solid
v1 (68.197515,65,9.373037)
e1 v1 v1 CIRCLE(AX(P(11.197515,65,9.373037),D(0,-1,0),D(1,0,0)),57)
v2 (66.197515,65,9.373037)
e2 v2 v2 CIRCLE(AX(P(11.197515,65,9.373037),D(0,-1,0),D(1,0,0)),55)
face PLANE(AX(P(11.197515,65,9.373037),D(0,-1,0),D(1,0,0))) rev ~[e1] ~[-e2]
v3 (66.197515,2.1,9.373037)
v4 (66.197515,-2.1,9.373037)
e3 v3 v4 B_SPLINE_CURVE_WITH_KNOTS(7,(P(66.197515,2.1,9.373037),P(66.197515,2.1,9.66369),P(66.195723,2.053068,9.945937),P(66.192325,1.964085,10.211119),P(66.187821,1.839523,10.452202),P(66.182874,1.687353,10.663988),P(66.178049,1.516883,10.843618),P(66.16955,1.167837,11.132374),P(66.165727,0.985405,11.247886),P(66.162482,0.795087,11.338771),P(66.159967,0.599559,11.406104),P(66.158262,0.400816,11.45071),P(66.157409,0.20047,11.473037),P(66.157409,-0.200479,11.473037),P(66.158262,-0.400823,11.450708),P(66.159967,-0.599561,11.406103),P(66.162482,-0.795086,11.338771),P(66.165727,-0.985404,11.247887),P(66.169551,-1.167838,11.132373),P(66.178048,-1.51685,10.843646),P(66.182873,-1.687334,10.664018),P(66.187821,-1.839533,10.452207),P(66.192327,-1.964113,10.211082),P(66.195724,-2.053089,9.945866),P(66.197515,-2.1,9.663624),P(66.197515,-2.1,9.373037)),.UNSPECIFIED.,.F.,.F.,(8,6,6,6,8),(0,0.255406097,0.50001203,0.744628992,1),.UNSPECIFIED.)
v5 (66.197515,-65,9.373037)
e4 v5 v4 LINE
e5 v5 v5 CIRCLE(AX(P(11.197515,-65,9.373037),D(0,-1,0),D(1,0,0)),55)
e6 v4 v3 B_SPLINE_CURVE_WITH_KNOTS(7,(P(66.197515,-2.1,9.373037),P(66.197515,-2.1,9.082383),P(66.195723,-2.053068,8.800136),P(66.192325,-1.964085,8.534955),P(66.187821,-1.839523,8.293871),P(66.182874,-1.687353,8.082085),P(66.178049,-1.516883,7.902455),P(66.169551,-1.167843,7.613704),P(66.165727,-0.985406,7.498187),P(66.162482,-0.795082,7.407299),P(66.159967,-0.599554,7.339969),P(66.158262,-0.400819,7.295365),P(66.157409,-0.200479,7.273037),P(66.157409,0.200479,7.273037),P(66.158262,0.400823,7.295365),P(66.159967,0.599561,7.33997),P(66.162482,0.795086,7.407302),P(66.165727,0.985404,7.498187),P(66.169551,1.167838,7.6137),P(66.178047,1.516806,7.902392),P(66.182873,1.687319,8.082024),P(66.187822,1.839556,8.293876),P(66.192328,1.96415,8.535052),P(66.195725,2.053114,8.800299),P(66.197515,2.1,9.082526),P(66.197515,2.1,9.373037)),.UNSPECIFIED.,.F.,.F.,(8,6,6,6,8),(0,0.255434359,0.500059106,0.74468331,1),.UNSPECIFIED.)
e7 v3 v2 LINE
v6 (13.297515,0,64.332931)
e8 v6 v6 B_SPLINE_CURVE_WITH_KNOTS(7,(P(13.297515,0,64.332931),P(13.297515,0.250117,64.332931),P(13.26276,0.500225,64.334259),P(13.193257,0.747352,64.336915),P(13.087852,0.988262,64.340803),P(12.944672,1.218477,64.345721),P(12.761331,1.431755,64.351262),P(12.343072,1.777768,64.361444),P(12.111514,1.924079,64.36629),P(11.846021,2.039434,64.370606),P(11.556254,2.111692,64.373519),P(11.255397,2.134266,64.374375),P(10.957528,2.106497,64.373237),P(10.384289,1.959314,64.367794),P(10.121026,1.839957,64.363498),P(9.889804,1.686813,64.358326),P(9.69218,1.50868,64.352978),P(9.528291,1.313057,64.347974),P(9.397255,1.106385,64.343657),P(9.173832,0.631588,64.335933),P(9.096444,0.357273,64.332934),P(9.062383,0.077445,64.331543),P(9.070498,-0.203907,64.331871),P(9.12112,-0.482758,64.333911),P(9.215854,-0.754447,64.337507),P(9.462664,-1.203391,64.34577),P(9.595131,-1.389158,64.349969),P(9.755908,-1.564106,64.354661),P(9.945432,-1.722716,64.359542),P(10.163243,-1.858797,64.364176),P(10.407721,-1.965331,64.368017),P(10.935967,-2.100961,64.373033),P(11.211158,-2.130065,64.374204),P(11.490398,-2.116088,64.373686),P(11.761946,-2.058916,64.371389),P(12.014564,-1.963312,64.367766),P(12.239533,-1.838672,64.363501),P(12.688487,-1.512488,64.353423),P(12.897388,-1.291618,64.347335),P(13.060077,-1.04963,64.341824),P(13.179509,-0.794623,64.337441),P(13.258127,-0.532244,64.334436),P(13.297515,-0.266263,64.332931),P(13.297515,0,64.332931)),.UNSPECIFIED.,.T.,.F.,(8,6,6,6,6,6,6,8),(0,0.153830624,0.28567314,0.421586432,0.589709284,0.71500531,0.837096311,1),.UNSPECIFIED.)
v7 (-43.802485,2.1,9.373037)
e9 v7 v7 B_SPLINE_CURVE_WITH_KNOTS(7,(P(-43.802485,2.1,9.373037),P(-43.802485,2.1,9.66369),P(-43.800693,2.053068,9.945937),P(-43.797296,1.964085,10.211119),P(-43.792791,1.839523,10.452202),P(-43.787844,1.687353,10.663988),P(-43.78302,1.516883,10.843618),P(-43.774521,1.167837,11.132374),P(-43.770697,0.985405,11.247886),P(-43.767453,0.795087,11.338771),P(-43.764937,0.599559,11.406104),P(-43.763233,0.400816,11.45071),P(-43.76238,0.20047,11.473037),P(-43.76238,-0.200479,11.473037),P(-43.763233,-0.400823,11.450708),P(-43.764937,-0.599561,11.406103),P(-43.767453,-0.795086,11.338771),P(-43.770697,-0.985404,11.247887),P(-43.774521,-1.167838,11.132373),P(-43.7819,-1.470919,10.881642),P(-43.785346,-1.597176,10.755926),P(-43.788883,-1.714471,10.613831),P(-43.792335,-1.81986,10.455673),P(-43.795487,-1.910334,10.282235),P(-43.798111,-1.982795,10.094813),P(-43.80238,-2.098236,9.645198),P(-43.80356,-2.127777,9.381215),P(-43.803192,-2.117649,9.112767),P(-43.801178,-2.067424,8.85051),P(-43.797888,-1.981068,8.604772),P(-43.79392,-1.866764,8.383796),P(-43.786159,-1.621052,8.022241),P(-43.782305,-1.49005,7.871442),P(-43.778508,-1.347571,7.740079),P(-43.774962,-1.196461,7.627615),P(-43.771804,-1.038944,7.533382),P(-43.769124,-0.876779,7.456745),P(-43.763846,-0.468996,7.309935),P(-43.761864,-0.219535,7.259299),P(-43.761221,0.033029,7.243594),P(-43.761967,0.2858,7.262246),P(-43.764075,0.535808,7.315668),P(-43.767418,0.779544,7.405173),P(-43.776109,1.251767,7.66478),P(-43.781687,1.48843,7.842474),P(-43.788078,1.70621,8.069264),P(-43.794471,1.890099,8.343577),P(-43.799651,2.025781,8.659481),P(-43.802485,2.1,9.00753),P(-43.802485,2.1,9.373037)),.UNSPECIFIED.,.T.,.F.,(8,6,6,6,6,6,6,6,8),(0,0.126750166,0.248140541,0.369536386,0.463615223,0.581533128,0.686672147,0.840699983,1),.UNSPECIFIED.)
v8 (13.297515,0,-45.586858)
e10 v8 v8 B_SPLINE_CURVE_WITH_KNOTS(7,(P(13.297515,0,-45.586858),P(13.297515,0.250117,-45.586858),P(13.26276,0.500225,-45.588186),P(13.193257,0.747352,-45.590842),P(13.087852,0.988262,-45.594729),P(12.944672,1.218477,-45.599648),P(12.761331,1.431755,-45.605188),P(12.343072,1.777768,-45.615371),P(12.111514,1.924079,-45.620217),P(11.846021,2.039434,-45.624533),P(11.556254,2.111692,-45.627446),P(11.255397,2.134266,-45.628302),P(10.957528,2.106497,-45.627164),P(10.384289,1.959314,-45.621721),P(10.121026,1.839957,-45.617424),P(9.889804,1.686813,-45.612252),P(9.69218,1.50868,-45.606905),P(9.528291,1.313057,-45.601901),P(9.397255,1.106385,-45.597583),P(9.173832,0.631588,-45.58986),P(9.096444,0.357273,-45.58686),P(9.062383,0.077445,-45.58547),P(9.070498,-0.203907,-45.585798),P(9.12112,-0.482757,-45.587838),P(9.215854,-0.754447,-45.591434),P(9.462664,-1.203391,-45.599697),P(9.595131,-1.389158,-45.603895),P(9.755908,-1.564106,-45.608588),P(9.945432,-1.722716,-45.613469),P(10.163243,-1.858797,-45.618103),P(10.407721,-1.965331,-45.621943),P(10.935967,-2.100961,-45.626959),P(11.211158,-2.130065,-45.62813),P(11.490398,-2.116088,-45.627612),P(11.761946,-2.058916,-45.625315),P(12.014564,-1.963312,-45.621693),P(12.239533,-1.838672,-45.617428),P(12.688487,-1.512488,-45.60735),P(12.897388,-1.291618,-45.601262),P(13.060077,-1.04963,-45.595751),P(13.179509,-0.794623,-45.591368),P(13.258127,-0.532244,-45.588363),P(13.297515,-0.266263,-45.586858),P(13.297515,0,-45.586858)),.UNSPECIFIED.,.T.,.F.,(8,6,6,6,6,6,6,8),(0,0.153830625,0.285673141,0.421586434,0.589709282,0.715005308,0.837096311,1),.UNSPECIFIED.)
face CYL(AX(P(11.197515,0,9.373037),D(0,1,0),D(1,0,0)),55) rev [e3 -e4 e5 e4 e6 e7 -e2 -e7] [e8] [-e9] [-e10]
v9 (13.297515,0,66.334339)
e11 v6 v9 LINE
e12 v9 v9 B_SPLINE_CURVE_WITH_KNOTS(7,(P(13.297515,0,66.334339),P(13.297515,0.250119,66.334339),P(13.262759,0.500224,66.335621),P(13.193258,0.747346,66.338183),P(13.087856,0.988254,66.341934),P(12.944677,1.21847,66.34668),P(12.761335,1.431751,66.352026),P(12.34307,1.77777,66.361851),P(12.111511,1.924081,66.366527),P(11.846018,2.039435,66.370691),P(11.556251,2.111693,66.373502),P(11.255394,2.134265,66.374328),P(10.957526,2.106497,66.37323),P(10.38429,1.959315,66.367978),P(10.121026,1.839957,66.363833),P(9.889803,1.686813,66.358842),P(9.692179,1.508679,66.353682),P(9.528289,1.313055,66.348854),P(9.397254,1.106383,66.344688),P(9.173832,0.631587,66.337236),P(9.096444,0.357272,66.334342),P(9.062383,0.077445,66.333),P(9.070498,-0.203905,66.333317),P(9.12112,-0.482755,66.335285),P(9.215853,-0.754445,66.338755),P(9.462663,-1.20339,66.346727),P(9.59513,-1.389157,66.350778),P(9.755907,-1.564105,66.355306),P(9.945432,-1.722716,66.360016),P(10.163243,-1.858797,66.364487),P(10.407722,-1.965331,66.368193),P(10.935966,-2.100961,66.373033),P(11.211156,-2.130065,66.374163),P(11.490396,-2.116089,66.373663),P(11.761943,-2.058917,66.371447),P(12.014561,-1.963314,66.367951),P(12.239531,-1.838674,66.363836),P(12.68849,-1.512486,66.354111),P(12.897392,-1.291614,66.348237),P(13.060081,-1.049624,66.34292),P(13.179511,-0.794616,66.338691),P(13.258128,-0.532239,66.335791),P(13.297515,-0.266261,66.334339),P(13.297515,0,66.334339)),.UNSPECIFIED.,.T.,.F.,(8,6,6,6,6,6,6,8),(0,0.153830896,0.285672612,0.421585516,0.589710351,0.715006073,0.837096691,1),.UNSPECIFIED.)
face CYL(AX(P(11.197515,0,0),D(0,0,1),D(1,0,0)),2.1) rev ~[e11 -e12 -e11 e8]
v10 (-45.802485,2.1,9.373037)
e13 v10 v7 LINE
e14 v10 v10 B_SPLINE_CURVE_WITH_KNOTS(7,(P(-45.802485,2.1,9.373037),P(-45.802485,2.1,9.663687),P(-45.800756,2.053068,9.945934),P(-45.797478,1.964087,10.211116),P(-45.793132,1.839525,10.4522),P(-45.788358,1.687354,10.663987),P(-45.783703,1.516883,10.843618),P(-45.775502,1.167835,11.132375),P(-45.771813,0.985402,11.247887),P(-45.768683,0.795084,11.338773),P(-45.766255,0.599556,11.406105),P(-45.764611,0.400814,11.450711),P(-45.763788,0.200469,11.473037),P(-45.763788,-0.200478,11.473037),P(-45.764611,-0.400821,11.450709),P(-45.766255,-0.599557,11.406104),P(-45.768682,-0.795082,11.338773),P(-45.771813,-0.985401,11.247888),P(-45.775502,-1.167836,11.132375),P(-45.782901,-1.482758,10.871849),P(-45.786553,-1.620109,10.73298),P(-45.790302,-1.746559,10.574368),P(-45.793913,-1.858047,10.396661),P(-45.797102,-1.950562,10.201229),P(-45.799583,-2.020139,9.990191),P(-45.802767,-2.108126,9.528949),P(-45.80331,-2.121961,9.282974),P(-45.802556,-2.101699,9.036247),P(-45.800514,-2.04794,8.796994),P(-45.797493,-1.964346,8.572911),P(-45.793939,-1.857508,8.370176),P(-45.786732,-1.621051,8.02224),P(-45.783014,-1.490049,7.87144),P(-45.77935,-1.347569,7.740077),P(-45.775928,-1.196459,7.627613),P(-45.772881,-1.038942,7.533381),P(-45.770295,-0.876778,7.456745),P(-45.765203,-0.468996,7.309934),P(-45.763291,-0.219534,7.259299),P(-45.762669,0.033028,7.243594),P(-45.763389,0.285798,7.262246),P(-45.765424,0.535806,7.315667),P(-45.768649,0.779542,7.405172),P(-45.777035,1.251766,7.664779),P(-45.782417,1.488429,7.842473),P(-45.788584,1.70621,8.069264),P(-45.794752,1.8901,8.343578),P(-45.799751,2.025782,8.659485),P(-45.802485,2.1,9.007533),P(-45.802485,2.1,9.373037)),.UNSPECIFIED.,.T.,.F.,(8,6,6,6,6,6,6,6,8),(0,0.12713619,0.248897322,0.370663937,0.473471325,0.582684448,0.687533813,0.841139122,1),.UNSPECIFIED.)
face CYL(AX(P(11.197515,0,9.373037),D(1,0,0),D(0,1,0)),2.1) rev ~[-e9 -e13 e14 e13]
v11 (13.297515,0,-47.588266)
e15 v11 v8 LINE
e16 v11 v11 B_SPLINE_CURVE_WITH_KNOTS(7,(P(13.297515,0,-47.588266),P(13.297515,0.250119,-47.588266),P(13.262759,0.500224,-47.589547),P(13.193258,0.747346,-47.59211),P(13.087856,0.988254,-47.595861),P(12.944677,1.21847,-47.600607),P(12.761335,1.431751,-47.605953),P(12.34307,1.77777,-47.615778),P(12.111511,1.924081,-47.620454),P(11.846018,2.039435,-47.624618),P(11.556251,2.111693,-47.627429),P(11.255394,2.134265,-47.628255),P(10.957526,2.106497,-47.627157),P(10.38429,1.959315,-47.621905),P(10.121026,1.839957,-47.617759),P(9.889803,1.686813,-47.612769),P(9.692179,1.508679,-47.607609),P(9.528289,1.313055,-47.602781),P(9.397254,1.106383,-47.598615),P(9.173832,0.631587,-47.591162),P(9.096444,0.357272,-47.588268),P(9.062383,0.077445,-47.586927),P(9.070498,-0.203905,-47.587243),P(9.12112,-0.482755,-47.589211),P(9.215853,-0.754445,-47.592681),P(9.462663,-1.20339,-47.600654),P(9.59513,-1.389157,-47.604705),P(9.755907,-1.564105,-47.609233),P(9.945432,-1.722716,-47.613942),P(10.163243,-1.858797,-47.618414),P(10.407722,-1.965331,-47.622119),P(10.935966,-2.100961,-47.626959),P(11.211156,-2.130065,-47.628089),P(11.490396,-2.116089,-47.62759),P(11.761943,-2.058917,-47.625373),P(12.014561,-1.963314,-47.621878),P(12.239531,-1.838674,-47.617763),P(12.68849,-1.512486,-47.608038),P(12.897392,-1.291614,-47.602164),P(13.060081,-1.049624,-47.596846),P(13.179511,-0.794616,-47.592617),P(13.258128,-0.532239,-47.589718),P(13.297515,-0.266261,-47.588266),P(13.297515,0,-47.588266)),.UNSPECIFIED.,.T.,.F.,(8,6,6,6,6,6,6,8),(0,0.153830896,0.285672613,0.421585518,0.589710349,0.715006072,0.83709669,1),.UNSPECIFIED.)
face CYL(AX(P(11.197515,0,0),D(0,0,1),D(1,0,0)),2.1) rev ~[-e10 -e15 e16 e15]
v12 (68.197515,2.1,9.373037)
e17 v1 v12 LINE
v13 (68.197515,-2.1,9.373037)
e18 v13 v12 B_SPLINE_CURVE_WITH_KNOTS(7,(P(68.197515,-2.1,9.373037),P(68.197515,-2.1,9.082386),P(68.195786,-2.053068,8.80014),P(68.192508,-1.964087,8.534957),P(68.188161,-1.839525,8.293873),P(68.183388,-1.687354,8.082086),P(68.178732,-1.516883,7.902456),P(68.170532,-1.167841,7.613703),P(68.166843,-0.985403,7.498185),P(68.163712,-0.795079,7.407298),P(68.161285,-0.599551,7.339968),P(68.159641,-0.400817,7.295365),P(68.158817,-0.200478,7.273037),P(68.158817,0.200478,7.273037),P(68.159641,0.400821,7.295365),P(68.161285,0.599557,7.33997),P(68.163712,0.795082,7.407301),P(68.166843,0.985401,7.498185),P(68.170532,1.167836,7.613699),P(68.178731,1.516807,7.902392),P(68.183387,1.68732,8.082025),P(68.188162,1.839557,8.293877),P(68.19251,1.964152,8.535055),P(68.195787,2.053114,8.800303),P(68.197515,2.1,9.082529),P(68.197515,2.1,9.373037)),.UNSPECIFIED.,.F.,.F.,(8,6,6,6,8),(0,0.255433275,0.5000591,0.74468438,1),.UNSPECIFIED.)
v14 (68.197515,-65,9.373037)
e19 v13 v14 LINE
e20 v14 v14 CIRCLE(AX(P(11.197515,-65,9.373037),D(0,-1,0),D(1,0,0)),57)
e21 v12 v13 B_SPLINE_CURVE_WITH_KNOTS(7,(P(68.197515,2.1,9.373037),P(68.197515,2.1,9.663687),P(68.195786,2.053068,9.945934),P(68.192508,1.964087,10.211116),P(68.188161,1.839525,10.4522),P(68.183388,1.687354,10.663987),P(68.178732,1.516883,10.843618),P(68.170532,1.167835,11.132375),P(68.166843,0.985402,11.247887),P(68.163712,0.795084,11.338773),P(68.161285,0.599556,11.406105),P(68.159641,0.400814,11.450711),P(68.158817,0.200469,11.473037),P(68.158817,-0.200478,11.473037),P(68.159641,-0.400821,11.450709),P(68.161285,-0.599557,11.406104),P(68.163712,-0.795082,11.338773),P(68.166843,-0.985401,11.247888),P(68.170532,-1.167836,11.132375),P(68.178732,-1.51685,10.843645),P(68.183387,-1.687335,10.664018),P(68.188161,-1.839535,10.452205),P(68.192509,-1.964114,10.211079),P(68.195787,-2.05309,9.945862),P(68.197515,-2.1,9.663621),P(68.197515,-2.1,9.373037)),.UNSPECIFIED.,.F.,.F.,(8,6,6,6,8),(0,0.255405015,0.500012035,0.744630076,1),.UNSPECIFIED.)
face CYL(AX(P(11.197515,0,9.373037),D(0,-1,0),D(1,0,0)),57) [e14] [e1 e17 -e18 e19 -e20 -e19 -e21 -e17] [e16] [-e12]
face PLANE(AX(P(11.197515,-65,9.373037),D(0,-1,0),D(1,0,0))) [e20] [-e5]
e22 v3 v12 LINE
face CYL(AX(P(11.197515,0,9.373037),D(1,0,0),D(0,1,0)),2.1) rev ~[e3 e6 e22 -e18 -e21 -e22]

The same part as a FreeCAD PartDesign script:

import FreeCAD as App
import Part
import Sketcher

doc = App.newDocument("Part")
body = doc.addObject("PartDesign::Body", "Body")

sketch1 = body.newObject("Sketcher::SketchObject", "Sketch")
sketch1.AttachmentSupport = (doc.getObject("XZ_Plane"), [""])
sketch1.MapMode = "FlatFace"
sketch1.addGeometry([
    Part.Circle(App.Vector(11, 9, 0), App.Vector(0, 0, 1), 57),
    Part.Circle(App.Vector(11, 9, 0), App.Vector(0, 0, 1), 55),
], False)
sketch1.addConstraint([
    Sketcher.Constraint("Coincident", 1, 3, 0, 3),
    Sketcher.Constraint("Diameter", 0, 114.0),
    Sketcher.Constraint("Diameter", 1, 110.0),
    Sketcher.Constraint("DistanceX", -1, 1, 0, 3, 11.197515),
    Sketcher.Constraint("DistanceY", -1, 1, 0, 3, 9.373037),
])
pad1 = body.newObject("PartDesign::Pad", "Pad")
pad1.Profile = sketch1
pad1.Length = 130
pad1.Midplane = True

sketch2 = body.newObject("Sketcher::SketchObject", "Sketch001")
sketch2.AttachmentSupport = (doc.getObject("YZ_Plane"), [""])
sketch2.MapMode = "FlatFace"
sketch2.AttachmentOffset = App.Placement(App.Vector(0, 0, 11.197515), App.Rotation())
sketch2.addGeometry(Part.Circle(App.Vector(0, 9.4, 0), App.Vector(0, 0, 1), 2.1), False)
sketch2.addConstraint([
    Sketcher.Constraint("PointOnObject", 0, 3, -2),
    Sketcher.Constraint("Diameter", 0, 4.2),
    Sketcher.Constraint("DistanceY", -1, 1, 0, 3, 9.373037),
])
pocket1 = body.newObject("PartDesign::Pocket", "Pocket")
pocket1.Profile = sketch2
pocket1.Length = 140
pocket1.Midplane = True

sketch3 = body.newObject("Sketcher::SketchObject", "Sketch002")
sketch3.AttachmentSupport = (doc.getObject("XY_Plane"), [""])
sketch3.MapMode = "FlatFace"
sketch3.addGeometry(Part.Circle(App.Vector(11.2, 0, 0), App.Vector(0, 0, 1), 2.1), False)
sketch3.addConstraint([
    Sketcher.Constraint("PointOnObject", 0, 3, -1),
    Sketcher.Constraint("Diameter", 0, 4.2),
    Sketcher.Constraint("DistanceX", -1, 1, 0, 3, 11.197515),
])
pocket2 = body.newObject("PartDesign::Pocket", "Pocket001")
pocket2.Profile = sketch3
pocket2.Length = 200
pocket2.Midplane = True

doc.recompute()
